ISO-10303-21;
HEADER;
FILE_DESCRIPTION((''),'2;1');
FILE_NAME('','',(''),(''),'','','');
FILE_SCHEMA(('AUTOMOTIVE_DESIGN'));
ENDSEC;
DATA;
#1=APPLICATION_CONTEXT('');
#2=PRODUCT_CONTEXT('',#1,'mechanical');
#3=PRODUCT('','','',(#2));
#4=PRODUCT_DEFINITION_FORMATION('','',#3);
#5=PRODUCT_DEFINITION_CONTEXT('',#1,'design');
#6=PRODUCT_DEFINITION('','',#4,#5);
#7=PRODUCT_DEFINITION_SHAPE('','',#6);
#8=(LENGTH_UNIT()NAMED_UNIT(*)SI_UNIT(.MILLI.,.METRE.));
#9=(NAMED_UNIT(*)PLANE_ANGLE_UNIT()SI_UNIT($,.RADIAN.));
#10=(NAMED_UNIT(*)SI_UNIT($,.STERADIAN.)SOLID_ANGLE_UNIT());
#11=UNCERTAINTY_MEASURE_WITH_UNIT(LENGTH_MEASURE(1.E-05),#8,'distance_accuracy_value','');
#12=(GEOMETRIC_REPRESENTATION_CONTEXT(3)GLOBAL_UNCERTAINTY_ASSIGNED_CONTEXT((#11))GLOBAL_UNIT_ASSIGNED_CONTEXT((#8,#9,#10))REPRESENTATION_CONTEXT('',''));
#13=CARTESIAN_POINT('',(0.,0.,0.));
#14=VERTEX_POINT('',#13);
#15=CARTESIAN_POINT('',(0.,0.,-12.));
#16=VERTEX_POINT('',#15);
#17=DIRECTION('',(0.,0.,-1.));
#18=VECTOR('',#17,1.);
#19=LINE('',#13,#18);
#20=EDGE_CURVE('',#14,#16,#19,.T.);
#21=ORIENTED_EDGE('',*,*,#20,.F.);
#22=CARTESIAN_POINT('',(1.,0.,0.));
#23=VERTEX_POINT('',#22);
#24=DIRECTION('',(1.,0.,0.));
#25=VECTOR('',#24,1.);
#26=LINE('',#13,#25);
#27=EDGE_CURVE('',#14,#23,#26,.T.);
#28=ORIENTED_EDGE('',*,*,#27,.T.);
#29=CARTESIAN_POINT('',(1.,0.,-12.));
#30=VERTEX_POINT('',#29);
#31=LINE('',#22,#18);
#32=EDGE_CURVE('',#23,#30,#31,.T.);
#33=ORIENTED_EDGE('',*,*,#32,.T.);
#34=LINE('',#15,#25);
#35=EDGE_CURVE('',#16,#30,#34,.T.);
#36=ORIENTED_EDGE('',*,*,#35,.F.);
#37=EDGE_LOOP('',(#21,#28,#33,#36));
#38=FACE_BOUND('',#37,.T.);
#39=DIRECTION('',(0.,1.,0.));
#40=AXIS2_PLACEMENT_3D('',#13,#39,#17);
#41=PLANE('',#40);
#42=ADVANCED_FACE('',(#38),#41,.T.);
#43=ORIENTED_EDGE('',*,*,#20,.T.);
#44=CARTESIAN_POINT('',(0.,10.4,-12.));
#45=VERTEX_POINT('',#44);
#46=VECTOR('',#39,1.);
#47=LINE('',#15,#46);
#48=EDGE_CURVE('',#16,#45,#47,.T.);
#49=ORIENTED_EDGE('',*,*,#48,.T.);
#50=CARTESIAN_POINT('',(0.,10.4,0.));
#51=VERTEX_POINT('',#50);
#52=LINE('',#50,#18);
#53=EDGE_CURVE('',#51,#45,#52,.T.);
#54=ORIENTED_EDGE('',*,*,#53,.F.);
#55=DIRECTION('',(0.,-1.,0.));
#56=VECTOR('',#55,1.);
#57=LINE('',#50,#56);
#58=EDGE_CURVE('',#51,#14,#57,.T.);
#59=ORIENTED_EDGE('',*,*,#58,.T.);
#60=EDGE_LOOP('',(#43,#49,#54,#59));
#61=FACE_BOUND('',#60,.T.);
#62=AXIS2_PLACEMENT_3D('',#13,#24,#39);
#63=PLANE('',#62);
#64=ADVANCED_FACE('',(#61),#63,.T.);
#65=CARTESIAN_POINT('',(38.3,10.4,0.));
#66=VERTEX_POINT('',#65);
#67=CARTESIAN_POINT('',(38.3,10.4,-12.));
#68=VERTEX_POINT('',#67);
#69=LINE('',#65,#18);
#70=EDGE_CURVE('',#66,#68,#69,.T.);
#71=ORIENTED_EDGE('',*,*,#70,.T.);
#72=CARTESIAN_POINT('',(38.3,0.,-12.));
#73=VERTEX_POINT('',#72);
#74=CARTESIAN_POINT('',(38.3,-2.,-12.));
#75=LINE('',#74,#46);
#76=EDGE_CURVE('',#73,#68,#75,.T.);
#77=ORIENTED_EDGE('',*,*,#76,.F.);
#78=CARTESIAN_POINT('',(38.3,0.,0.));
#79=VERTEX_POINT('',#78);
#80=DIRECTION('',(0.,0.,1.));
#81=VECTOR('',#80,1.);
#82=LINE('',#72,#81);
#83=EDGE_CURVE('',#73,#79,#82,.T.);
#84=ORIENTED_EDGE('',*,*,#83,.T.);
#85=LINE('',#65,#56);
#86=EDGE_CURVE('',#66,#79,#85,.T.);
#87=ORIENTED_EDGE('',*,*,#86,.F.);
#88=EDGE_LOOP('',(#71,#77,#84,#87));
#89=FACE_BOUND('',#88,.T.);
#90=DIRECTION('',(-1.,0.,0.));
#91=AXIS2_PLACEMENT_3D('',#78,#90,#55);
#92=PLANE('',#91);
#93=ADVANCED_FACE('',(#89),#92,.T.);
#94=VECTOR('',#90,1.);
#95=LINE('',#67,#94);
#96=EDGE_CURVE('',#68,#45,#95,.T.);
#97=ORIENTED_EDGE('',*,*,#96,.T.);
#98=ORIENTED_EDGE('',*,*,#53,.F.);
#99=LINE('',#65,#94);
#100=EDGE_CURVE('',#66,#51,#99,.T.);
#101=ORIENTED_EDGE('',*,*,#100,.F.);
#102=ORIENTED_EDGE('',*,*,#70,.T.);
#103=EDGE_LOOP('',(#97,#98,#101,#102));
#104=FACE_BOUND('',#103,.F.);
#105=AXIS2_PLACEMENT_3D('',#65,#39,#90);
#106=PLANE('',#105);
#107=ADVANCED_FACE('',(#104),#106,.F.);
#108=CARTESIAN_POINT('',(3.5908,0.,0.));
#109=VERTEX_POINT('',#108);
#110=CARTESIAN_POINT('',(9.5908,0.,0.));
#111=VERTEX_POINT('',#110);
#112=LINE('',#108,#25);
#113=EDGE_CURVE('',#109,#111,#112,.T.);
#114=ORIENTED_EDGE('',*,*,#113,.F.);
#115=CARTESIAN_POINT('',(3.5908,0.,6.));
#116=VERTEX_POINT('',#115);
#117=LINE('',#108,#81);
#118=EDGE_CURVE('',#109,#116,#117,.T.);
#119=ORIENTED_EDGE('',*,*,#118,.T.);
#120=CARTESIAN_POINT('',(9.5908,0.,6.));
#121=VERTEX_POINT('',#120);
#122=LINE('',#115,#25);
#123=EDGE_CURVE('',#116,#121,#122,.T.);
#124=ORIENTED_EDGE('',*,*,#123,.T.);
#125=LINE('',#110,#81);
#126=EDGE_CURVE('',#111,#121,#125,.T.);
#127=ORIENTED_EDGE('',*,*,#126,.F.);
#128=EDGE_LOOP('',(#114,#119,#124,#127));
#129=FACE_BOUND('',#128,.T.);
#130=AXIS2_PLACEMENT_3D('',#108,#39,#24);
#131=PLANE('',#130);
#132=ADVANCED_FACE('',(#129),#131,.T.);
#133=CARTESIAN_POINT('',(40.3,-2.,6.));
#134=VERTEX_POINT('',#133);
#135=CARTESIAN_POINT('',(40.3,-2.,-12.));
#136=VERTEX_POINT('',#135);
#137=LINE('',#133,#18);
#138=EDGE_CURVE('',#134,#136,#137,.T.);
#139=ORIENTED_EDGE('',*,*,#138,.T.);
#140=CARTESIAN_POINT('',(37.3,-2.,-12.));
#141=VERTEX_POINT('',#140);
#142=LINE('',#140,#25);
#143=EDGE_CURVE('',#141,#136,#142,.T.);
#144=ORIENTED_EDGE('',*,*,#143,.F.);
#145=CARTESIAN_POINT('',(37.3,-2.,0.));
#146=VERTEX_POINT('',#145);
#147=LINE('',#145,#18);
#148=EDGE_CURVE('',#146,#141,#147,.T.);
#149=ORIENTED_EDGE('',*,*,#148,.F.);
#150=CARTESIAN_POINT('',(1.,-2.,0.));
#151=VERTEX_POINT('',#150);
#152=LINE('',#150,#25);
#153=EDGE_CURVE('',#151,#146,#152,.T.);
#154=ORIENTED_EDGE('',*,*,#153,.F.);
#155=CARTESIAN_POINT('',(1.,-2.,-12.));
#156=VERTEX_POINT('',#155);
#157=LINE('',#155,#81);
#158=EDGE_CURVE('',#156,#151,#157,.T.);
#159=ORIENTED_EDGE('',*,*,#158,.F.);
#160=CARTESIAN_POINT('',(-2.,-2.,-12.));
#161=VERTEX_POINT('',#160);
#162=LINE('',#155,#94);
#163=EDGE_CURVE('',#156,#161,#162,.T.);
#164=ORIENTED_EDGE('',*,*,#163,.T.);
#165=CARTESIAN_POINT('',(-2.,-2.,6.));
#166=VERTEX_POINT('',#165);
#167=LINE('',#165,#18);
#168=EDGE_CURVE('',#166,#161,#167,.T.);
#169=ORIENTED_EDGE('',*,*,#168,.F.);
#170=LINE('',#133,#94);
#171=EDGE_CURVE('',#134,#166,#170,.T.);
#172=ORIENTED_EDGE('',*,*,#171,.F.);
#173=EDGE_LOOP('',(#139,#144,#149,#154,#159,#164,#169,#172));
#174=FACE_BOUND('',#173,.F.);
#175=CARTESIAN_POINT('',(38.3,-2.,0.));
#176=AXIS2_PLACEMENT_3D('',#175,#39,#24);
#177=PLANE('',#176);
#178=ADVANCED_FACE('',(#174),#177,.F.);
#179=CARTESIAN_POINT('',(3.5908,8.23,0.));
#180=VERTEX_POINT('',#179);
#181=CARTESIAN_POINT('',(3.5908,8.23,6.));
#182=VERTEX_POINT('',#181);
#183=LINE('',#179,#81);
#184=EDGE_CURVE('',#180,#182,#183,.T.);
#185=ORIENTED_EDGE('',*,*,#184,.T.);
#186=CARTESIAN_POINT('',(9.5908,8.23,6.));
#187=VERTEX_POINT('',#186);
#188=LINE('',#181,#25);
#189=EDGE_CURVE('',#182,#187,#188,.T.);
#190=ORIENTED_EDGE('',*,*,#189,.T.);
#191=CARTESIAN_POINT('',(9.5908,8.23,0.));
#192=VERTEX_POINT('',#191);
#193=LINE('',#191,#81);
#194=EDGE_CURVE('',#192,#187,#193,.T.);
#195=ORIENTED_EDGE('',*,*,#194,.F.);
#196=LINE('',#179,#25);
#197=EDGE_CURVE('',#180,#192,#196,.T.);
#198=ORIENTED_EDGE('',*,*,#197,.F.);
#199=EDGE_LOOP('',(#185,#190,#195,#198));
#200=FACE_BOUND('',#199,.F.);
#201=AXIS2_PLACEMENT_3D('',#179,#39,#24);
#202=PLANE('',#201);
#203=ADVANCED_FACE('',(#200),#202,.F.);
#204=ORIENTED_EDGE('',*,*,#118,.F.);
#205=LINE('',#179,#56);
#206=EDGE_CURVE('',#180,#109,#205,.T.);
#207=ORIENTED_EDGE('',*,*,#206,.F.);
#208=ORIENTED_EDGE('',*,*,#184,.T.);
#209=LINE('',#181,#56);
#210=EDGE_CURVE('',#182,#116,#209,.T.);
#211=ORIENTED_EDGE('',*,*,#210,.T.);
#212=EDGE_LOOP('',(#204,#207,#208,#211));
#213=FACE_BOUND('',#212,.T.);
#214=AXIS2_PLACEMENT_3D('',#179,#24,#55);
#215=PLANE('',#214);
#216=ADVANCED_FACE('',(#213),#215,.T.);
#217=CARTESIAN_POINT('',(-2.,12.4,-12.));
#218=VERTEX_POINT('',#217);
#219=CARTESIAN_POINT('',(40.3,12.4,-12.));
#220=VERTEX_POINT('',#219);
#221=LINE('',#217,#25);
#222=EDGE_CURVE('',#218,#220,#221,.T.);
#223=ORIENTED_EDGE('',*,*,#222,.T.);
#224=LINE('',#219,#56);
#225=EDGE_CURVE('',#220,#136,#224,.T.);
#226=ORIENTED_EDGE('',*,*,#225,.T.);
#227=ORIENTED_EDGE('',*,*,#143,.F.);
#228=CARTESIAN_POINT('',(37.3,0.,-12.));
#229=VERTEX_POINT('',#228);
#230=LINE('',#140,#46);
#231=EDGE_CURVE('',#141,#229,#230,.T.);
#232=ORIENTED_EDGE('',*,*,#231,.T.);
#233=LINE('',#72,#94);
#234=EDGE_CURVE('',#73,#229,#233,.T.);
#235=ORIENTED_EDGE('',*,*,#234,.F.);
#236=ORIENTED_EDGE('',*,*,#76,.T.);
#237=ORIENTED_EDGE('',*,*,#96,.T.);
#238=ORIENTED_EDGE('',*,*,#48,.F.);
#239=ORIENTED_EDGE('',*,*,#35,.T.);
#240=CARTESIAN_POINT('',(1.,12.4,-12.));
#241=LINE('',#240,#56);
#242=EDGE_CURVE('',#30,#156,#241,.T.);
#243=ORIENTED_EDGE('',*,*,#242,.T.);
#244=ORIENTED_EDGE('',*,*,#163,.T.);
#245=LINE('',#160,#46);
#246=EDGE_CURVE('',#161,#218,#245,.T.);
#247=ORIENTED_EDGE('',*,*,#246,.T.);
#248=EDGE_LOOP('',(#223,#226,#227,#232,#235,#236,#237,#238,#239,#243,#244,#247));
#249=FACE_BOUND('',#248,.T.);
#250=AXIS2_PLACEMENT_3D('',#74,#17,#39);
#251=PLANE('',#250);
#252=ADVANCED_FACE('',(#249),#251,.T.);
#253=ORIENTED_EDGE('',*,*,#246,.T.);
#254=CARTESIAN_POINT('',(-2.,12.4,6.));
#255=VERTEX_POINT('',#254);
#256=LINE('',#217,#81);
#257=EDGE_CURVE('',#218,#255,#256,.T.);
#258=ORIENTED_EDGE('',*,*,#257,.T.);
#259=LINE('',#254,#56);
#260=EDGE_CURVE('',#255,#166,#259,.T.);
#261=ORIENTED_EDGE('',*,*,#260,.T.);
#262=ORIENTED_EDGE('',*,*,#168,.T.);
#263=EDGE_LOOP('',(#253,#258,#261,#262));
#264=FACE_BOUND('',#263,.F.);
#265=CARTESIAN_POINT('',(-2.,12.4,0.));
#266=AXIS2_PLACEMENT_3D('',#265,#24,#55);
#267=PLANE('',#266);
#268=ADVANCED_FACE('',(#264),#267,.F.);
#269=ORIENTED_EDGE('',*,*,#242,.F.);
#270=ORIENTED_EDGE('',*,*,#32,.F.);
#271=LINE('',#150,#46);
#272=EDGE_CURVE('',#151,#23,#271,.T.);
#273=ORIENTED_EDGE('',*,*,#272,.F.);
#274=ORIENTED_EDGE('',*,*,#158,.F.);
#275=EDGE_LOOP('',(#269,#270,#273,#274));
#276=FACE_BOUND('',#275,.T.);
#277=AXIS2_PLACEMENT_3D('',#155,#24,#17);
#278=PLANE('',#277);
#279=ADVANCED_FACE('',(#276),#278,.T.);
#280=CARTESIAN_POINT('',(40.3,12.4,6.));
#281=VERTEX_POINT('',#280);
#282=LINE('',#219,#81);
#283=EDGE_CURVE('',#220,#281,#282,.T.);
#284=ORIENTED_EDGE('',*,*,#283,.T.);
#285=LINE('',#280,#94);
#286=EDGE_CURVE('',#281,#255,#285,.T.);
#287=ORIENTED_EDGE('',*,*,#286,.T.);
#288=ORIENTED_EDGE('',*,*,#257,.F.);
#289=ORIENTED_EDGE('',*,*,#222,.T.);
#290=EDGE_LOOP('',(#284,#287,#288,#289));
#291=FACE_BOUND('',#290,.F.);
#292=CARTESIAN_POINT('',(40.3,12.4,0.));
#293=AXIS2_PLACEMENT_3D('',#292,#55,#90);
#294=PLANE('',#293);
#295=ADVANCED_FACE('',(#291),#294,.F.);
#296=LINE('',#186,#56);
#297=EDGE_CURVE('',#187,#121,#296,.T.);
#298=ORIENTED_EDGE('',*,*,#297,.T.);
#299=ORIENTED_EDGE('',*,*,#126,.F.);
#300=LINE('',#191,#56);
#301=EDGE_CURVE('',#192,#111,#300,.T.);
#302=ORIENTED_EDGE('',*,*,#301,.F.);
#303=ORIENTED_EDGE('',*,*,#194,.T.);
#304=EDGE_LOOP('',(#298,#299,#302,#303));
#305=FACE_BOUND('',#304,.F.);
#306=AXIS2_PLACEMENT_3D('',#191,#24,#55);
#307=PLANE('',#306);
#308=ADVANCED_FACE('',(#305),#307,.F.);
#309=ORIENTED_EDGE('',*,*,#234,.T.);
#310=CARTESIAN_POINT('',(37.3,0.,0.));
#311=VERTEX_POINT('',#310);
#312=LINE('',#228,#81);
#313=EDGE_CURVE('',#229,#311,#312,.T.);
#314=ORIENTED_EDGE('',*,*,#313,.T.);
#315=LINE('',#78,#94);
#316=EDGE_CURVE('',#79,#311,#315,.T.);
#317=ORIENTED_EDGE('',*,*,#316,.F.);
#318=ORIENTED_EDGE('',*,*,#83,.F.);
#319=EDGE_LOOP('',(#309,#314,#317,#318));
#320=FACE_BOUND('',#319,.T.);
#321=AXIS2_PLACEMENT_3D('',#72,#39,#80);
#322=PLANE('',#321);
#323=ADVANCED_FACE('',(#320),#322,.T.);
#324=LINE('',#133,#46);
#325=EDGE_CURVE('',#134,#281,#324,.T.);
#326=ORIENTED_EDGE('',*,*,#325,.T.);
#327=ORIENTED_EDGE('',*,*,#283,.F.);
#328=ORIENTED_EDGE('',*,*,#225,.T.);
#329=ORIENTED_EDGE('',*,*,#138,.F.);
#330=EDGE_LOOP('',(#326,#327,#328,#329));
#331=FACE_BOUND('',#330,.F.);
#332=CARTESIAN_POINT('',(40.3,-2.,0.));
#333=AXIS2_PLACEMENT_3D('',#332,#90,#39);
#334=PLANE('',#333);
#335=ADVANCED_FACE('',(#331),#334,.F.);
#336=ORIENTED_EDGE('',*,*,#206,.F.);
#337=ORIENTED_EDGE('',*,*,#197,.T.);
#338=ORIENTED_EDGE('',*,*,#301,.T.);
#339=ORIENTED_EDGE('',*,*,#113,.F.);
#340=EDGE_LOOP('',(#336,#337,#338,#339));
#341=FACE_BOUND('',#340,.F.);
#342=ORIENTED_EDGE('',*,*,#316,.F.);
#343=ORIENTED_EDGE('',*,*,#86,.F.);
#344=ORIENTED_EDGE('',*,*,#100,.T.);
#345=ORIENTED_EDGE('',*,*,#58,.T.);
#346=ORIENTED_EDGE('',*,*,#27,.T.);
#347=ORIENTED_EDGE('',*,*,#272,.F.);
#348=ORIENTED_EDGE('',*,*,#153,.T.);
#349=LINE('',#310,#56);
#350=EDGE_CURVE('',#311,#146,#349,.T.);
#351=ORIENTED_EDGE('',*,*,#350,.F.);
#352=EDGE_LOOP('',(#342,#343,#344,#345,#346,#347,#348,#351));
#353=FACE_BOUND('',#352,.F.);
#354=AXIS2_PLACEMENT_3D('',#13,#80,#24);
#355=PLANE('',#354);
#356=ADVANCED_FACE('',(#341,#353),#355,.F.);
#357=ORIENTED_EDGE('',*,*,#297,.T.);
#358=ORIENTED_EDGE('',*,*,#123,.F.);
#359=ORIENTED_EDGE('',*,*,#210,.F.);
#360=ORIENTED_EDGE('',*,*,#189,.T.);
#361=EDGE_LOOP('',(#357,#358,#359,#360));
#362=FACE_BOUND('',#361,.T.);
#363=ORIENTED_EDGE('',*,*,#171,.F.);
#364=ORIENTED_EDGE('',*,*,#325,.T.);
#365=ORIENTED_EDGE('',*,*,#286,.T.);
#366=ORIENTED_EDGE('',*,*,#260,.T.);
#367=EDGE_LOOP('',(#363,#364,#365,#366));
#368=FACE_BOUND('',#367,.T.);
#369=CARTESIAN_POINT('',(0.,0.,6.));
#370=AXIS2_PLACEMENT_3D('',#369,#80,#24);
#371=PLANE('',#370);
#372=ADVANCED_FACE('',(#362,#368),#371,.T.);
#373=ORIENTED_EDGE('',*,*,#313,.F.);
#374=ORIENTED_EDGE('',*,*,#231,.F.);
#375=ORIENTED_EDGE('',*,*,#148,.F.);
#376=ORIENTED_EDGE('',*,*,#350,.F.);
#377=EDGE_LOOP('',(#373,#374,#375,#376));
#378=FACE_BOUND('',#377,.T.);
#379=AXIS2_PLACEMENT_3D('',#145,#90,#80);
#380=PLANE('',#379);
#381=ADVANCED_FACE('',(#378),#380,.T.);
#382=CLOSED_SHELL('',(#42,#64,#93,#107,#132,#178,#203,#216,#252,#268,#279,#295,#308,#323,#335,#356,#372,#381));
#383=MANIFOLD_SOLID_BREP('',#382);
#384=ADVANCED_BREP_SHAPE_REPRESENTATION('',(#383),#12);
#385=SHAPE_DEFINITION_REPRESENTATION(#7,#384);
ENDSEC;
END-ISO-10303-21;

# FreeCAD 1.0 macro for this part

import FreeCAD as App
import Part
import Sketcher

V = App.Vector


def add_polygon(sketch, points):
    """Adds a closed chain of lines whose ends are joined by coincident constraints."""
    first, n = sketch.GeometryCount, len(points)
    for a, b in zip(points, points[1:] + points[:1]):
        sketch.addGeometry(Part.LineSegment(App.Vector(*a, 0), App.Vector(*b, 0)), False)
    for i in range(n):
        sketch.addConstraint(Sketcher.Constraint("Coincident", first + i, 2, first + (i + 1) % n, 1))

doc = App.newDocument("Part")
params = doc.addObject("Spreadsheet::Sheet", "Params")
for row, (alias, value) in enumerate([
    ("sketch1_width", "2 mm"),
    ("sketch1_width2", "38.3 mm"),
    ("sketch1_height", "12.4 mm"),
    ("sketch1_height2", "14.4 mm"),
    ("pad1_length", "12 mm"),
    ("sketch2_width", "2 mm"),
    ("sketch2_height", "12 mm"),
    ("pad2_length", "1 mm"),
    ("sketch3_width", "2 mm"),
    ("sketch3_height", "12 mm"),
    ("pad3_length", "1 mm"),
    ("sketch4_width", "6 mm"),
    ("sketch4_width2", "42.3 mm"),
    ("sketch4_height", "14.4 mm"),
    ("sketch4_height2", "8.23 mm"),
    ("pad4_length", "6 mm"),
], start=1):
    params.set(f"A{row}", alias)
    params.set(f"B{row}", "=" + value)
    params.setAlias(f"B{row}", alias)

body = doc.addObject("PartDesign::Body", "Body")

# Sketch on XY plane
sketch1 = body.newObject("Sketcher::SketchObject", "Sketch")
sketch1.AttachmentSupport = (doc.getObject("XY_Plane"), [""])
sketch1.MapMode = "FlatFace"
add_polygon(sketch1, [(0, -2), (0, 10.4), (38.3, 10.4), (38.3, -2), (40.3, -2), (40.3, 12.4), (-2, 12.4), (-2, -2)])  # lines 0-7
sketch1.addConstraint(Sketcher.Constraint("Vertical", 0))
sketch1.addConstraint(Sketcher.Constraint("Horizontal", 1))
sketch1.addConstraint(Sketcher.Constraint("Vertical", 2))
sketch1.addConstraint(Sketcher.Constraint("Horizontal", 3))
sketch1.addConstraint(Sketcher.Constraint("Vertical", 4))
sketch1.addConstraint(Sketcher.Constraint("Horizontal", 5))
sketch1.addConstraint(Sketcher.Constraint("Vertical", 6))
sketch1.addConstraint(Sketcher.Constraint("Horizontal", 7))
sketch1.addConstraint(Sketcher.Constraint("PointOnObject", 0, 2, -2))
sketch1.addConstraint(Sketcher.Constraint("Horizontal", 3, 2, 6, 2))
sketch1.addConstraint(Sketcher.Constraint("Equal", 3, 7))
sketch1.addConstraint(Sketcher.Constraint("DistanceX", 3, 1, 3, 2, 2.0))
sketch1.addConstraint(Sketcher.Constraint("DistanceX", 1, 1, 1, 2, 38.3))
sketch1.addConstraint(Sketcher.Constraint("DistanceY", 0, 1, 0, 2, 12.4))
sketch1.addConstraint(Sketcher.Constraint("DistanceY", 4, 1, 4, 2, 14.4))
sketch1.addConstraint(Sketcher.Constraint("DistanceY", 2, 2, -1, 1, 2.0))
sketch1.setExpression("Constraints[19]", "Params.sketch1_width")
sketch1.setExpression("Constraints[20]", "Params.sketch1_width2")
sketch1.setExpression("Constraints[21]", "Params.sketch1_height")
sketch1.setExpression("Constraints[22]", "Params.sketch1_height2")
pad1 = body.newObject("PartDesign::Pad", "Pad")
pad1.Profile = sketch1
pad1.setExpression("Length", "Params.pad1_length")
pad1.Reversed = True

# Sketch on YZ plane
sketch2 = body.newObject("Sketcher::SketchObject", "Sketch001")
sketch2.AttachmentSupport = (doc.getObject("YZ_Plane"), [""])
sketch2.MapMode = "FlatFace"
add_polygon(sketch2, [(-2, -12), (0, -12), (0, 0), (-2, 0)])  # lines 0-3
sketch2.addConstraint(Sketcher.Constraint("Horizontal", 0))
sketch2.addConstraint(Sketcher.Constraint("Vertical", 1))
sketch2.addConstraint(Sketcher.Constraint("Horizontal", 2))
sketch2.addConstraint(Sketcher.Constraint("Vertical", 3))
sketch2.addConstraint(Sketcher.Constraint("Coincident", 1, 2, -1, 1))
sketch2.addConstraint(Sketcher.Constraint("DistanceX", 0, 1, 0, 2, 2.0))
sketch2.addConstraint(Sketcher.Constraint("DistanceY", 1, 1, 1, 2, 12.0))
sketch2.setExpression("Constraints[9]", "Params.sketch2_width")
sketch2.setExpression("Constraints[10]", "Params.sketch2_height")
pad2 = body.newObject("PartDesign::Pad", "Pad001")
pad2.Profile = sketch2
pad2.setExpression("Length", "Params.pad2_length")

# Sketch on YZ plane
sketch3 = body.newObject("Sketcher::SketchObject", "Sketch002")
sketch3.AttachmentSupport = (doc.getObject("YZ_Plane"), [""])
sketch3.MapMode = "FlatFace"
sketch3.AttachmentOffset = App.Placement(V(0, 0, 38.3), App.Rotation())
add_polygon(sketch3, [(-2, 0), (0, 0), (0, -12), (-2, -12)])  # lines 0-3
sketch3.addConstraint(Sketcher.Constraint("Horizontal", 0))
sketch3.addConstraint(Sketcher.Constraint("Vertical", 1))
sketch3.addConstraint(Sketcher.Constraint("Horizontal", 2))
sketch3.addConstraint(Sketcher.Constraint("Vertical", 3))
sketch3.addConstraint(Sketcher.Constraint("Coincident", 0, 2, -1, 1))
sketch3.addConstraint(Sketcher.Constraint("DistanceX", 0, 1, 0, 2, 2.0))
sketch3.addConstraint(Sketcher.Constraint("DistanceY", 1, 2, 1, 1, 12.0))
sketch3.setExpression("Constraints[9]", "Params.sketch3_width")
sketch3.setExpression("Constraints[10]", "Params.sketch3_height")
pad3 = body.newObject("PartDesign::Pad", "Pad002")
pad3.Profile = sketch3
pad3.setExpression("Length", "Params.pad3_length")
pad3.Reversed = True

# Sketch on XY plane
sketch4 = body.newObject("Sketcher::SketchObject", "Sketch003")
sketch4.AttachmentSupport = (doc.getObject("XY_Plane"), [""])
sketch4.MapMode = "FlatFace"
add_polygon(sketch4, [(40, -2), (40, 12), (-2, 12), (-2, -2)])  # lines 0-3
add_polygon(sketch4, [(4, 0), (4, 8), (10, 8), (10, 0)])  # lines 4-7
sketch4.addConstraint(Sketcher.Constraint("Vertical", 0))
sketch4.addConstraint(Sketcher.Constraint("Horizontal", 1))
sketch4.addConstraint(Sketcher.Constraint("Vertical", 2))
sketch4.addConstraint(Sketcher.Constraint("Horizontal", 3))
sketch4.addConstraint(Sketcher.Constraint("Vertical", 4))
sketch4.addConstraint(Sketcher.Constraint("Horizontal", 5))
sketch4.addConstraint(Sketcher.Constraint("Vertical", 6))
sketch4.addConstraint(Sketcher.Constraint("Horizontal", 7))
sketch4.addConstraint(Sketcher.Constraint("PointOnObject", 6, 2, -1))
sketch4.addConstraint(Sketcher.Constraint("DistanceX", 5, 1, 5, 2, 6.0))
sketch4.addConstraint(Sketcher.Constraint("DistanceX", 1, 2, 1, 1, 42.3))
sketch4.addConstraint(Sketcher.Constraint("DistanceY", 0, 1, 0, 2, 14.4))
sketch4.addConstraint(Sketcher.Constraint("DistanceX", 1, 2, -1, 1, 2.0))
sketch4.addConstraint(Sketcher.Constraint("DistanceY", 2, 2, -1, 1, 2.0))
sketch4.addConstraint(Sketcher.Constraint("DistanceY", 4, 1, 4, 2, 8.23))
sketch4.addConstraint(Sketcher.Constraint("DistanceX", -1, 1, 4, 2, 3.5908))
sketch4.setExpression("Constraints[17]", "Params.sketch4_width")
sketch4.setExpression("Constraints[18]", "Params.sketch4_width2")
sketch4.setExpression("Constraints[19]", "Params.sketch4_height")
sketch4.setExpression("Constraints[22]", "Params.sketch4_height2")
pad4 = body.newObject("PartDesign::Pad", "Pad003")
pad4.Profile = sketch4
pad4.setExpression("Length", "Params.pad4_length")

doc.recompute()
